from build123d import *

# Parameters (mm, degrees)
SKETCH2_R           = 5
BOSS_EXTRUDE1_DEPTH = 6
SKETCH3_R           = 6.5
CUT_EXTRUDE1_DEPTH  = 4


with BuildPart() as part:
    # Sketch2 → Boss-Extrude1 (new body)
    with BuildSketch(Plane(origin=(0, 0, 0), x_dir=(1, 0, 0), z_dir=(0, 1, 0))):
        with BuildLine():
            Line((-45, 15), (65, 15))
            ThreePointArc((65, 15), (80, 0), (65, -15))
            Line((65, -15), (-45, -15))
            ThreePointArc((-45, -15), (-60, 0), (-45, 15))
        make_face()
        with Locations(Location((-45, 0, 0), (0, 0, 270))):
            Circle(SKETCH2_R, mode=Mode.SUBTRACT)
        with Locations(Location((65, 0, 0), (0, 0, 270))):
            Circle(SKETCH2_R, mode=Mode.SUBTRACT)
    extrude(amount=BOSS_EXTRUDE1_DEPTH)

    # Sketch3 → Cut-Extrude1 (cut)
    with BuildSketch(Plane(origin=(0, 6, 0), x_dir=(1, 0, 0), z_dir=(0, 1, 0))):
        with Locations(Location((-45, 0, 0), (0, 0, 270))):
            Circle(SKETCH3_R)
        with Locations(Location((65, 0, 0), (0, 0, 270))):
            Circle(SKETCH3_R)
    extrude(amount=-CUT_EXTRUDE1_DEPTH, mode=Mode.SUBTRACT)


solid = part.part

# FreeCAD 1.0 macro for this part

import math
import FreeCAD as App
import Part
import Sketcher

V = App.Vector

doc = App.newDocument("Part")
params = doc.addObject("Spreadsheet::Sheet", "Params")
for row, (alias, value) in enumerate([
    ("sketch1_diameter", "10 mm"),
    ("sketch1_radius", "15 mm"),
    ("sketch1_width", "110 mm"),
    ("pad1_length", "6 mm"),
    ("sketch2_diameter", "13 mm"),
    ("pocket1_length", "4 mm"),
], start=1):
    params.set(f"A{row}", alias)
    params.set(f"B{row}", "=" + value)
    params.setAlias(f"B{row}", alias)

body = doc.addObject("PartDesign::Body", "Body")

# Sketch on XZ plane
sketch1 = doc.addObject("Sketcher::SketchObject", "Sketch")
body.addObject(sketch1)
sketch1.AttachmentSupport = (doc.XZ_Plane, [""])
sketch1.MapMode = "FlatFace"
sketch1.addGeometry([
    Part.LineSegment(V(65, -15, 0), V(-45, -15, 0)),  # 0
    Part.ArcOfCircle(Part.Circle(V(-45, 0, 0), V(0, 0, 1), 15), math.radians(90), math.radians(270)),  # 1
    Part.LineSegment(V(-45, 15, 0), V(65, 15, 0)),  # 2
    Part.ArcOfCircle(Part.Circle(V(65, 0, 0), V(0, 0, 1), 15), math.radians(-90), math.radians(90)),  # 3
    Part.Circle(V(65, 0, 0), V(0, 0, 1), 5),  # 4
    Part.Circle(V(-45, 0, 0), V(0, 0, 1), 5),  # 5
], False)
sketch1.addConstraint([
    Sketcher.Constraint("Tangent", 0, 2, 1, 2),
    Sketcher.Constraint("Tangent", 1, 1, 2, 1),
    Sketcher.Constraint("Tangent", 2, 2, 3, 2),
    Sketcher.Constraint("Tangent", 3, 1, 0, 1),
    Sketcher.Constraint("Horizontal", 0),
    Sketcher.Constraint("Horizontal", 2),
    Sketcher.Constraint("Coincident", 4, 3, 3, 3),
    Sketcher.Constraint("Coincident", 5, 3, 1, 3),
    Sketcher.Constraint("Equal", 4, 5),
    Sketcher.Constraint("PointOnObject", 1, 3, -1),
    Sketcher.Constraint("Diameter", 4, 10.0),
    Sketcher.Constraint("Radius", 1, 15.0),
    Sketcher.Constraint("DistanceX", 0, 2, 0, 1, 110.0),
    Sketcher.Constraint("DistanceX", 1, 3, -1, 1, 45.0),
])
sketch1.setExpression("Constraints[10]", "Params.sketch1_diameter")
sketch1.setExpression("Constraints[11]", "Params.sketch1_radius")
sketch1.setExpression("Constraints[12]", "Params.sketch1_width")
pad1 = doc.addObject("PartDesign::Pad", "Pad")
body.addObject(pad1)
pad1.Profile = sketch1
pad1.setExpression("Length", "Params.pad1_length")
pad1.Reversed = True

# Sketch on XZ plane
sketch2 = doc.addObject("Sketcher::SketchObject", "Sketch001")
body.addObject(sketch2)
sketch2.AttachmentSupport = (doc.XZ_Plane, [""])
sketch2.MapMode = "FlatFace"
sketch2.AttachmentOffset = App.Placement(V(0, 0, -6), App.Rotation())
sketch2.addGeometry([
    Part.Circle(V(-45, 0, 0), V(0, 0, 1), 6),
    Part.Circle(V(65, 0, 0), V(0, 0, 1), 6),
], False)
sketch2.addConstraint([
    Sketcher.Constraint("Equal", 0, 1),
    Sketcher.Constraint("PointOnObject", 0, 3, -1),
    Sketcher.Constraint("PointOnObject", 1, 3, -1),
    Sketcher.Constraint("Diameter", 0, 13.0),
    Sketcher.Constraint("DistanceX", 0, 3, -1, 1, 45.0),
    Sketcher.Constraint("DistanceX", -1, 1, 1, 3, 65.0),
])
sketch2.setExpression("Constraints[3]", "Params.sketch2_diameter")
pocket1 = doc.addObject("PartDesign::Pocket", "Pocket")
body.addObject(pocket1)
pocket1.Profile = sketch2
pocket1.setExpression("Length", "Params.pocket1_length")
pocket1.Reversed = True

doc.recompute()
